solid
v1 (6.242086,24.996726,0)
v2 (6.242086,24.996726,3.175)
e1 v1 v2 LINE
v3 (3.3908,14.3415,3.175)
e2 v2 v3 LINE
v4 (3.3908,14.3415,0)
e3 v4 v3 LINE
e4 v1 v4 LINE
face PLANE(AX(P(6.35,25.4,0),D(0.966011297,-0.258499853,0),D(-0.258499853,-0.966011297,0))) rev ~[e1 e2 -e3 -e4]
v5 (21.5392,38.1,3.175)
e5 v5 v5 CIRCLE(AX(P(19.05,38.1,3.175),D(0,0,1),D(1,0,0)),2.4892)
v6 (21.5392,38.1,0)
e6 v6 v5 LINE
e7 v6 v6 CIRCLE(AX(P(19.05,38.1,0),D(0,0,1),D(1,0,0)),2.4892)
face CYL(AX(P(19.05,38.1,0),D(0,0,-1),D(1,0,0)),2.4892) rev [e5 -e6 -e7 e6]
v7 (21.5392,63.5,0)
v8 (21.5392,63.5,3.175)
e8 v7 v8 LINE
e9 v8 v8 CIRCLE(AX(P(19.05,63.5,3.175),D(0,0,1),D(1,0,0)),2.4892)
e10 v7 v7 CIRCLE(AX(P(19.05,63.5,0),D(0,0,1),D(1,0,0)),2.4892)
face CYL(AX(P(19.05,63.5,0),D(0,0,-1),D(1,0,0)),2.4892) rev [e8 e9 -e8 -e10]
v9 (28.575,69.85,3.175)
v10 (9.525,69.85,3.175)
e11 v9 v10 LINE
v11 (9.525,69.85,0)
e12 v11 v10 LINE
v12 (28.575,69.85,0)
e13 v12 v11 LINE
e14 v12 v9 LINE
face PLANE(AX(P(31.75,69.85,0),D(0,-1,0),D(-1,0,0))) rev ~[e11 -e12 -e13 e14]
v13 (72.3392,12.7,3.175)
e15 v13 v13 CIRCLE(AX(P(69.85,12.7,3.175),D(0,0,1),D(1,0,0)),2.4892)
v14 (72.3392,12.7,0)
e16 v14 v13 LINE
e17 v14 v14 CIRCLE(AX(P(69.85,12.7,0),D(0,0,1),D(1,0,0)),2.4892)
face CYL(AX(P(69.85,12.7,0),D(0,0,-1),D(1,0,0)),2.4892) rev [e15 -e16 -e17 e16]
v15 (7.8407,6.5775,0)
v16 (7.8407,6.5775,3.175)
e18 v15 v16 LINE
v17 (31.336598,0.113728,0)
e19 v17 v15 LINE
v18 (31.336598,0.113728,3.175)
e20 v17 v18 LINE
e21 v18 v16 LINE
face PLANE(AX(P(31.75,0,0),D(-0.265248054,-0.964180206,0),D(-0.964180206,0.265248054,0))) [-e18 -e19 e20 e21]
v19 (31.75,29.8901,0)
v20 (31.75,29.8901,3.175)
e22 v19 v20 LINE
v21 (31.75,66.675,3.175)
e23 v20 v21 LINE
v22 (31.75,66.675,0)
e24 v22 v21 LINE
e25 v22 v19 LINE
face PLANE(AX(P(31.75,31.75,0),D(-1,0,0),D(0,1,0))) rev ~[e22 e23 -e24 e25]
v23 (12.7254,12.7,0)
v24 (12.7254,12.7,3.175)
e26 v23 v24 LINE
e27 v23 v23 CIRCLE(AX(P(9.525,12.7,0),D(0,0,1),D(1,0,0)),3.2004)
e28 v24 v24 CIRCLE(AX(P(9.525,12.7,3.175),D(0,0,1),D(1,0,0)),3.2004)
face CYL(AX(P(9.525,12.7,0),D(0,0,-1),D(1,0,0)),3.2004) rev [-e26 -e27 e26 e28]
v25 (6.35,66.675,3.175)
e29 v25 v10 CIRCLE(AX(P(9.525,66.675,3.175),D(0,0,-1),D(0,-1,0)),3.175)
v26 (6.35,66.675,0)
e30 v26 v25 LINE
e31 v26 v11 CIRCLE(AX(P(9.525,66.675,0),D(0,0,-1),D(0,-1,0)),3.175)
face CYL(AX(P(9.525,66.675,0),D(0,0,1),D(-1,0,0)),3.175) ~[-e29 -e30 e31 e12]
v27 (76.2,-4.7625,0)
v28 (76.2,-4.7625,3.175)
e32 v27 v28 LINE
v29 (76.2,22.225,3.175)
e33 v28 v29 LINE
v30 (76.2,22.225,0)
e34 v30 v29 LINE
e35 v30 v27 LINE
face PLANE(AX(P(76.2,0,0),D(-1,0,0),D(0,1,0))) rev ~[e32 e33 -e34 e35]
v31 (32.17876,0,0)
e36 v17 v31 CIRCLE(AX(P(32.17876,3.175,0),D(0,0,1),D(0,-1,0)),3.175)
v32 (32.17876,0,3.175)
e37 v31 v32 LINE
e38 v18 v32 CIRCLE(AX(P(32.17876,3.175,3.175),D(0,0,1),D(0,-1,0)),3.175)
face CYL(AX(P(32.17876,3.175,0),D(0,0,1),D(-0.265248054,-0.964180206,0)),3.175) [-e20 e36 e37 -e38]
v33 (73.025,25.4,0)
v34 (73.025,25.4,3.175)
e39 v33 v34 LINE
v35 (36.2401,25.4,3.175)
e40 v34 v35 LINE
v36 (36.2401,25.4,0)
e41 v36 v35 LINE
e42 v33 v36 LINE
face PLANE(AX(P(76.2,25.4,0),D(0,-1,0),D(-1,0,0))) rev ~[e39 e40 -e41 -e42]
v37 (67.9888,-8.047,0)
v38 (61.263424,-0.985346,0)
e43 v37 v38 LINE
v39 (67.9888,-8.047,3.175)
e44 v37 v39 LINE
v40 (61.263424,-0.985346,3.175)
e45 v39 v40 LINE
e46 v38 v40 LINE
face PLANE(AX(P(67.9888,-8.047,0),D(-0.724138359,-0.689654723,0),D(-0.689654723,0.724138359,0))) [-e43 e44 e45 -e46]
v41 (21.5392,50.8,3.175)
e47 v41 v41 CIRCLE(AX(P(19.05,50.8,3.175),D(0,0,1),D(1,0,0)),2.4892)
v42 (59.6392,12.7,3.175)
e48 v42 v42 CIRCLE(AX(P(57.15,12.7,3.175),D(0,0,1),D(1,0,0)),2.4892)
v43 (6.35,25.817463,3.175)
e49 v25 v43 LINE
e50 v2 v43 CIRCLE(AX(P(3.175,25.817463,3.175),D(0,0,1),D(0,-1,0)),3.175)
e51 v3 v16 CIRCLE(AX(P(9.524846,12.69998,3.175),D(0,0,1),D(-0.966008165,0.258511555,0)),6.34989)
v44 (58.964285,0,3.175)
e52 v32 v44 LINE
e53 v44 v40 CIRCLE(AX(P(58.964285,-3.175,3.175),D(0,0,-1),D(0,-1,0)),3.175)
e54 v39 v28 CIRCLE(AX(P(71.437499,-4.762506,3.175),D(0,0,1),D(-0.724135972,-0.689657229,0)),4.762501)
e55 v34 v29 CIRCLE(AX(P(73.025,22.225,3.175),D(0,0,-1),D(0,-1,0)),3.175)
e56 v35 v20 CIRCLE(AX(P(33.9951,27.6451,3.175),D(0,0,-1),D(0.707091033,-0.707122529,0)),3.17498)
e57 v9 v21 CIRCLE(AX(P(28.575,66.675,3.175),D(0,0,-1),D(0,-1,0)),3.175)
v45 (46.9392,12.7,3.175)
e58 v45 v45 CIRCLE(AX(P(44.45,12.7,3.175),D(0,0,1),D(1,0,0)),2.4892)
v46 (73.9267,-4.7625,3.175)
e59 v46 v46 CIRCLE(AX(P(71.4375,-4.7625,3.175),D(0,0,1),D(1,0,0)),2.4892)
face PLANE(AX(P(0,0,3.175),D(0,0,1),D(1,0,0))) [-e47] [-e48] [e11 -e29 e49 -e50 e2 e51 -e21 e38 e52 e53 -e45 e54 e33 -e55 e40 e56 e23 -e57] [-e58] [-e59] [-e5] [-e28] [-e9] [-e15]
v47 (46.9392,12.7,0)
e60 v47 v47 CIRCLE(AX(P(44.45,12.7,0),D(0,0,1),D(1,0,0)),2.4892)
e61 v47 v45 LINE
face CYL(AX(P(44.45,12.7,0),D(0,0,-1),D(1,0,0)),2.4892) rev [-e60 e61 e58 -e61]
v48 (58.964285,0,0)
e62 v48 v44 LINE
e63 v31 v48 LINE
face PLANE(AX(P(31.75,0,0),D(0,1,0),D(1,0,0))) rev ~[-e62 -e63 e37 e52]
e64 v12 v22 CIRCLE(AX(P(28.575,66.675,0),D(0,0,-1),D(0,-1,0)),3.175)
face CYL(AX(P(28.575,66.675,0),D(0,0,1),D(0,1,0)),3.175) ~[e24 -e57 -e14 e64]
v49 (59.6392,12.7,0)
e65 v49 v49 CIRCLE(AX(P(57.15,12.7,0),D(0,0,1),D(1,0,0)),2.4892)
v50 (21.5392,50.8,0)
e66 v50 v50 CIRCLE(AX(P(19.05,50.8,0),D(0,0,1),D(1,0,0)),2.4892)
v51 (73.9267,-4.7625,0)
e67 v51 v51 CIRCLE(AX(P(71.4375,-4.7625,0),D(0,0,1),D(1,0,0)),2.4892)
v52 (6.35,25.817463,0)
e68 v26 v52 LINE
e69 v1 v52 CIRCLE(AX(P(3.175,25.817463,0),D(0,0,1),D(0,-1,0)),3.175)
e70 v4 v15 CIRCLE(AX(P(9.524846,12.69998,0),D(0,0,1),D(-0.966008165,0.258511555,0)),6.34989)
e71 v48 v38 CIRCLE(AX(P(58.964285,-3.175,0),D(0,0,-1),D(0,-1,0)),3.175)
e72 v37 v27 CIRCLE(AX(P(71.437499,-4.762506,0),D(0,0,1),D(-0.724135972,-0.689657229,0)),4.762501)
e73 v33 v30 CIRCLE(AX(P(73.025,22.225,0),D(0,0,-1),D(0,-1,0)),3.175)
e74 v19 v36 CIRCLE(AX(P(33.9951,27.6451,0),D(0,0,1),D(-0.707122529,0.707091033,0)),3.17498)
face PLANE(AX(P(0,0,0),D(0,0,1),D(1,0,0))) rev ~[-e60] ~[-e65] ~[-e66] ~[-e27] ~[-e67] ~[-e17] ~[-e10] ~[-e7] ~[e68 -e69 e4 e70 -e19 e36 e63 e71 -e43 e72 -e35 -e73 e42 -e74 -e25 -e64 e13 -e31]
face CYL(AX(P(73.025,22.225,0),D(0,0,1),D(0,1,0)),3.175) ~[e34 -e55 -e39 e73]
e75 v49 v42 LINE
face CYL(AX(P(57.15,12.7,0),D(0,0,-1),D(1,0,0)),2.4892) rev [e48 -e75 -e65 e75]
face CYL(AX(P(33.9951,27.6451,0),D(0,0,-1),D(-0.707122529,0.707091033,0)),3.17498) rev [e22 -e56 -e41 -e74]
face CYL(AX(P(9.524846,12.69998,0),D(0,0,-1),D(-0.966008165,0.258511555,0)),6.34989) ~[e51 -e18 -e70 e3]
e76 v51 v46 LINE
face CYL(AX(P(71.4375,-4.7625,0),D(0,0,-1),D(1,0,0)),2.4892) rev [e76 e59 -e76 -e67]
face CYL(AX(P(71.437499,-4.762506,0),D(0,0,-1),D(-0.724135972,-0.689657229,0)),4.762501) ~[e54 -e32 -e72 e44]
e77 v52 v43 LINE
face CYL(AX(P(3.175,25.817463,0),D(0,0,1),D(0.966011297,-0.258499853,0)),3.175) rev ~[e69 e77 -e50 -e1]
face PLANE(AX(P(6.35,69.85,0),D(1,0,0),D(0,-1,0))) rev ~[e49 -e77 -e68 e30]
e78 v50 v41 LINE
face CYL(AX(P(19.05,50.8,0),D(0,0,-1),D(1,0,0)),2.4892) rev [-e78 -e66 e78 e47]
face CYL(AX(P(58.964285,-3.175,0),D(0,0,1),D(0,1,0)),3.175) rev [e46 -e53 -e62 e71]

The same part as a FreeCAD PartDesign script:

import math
import FreeCAD as App
import Part
import Sketcher
from FreeCAD import Vector
Q = App.Units.Quantity


def edges_at(feature, points):
    """Names of the edges that pass closest to the given points."""
    edges = feature.Shape.Edges
    near = lambda p: min(range(len(edges)), key=lambda i: edges[i].distToShape(Part.Vertex(*p))[0])
    return sorted({f"Edge{near(p) + 1}" for p in points})

doc = App.newDocument("Part")
body = doc.addObject("PartDesign::Body", "Body")

# Sketch on XY plane
sketch1 = body.newObject("Sketcher::SketchObject", "Sketch")
sketch1.AttachmentSupport = (doc.getObject("XY_Plane"), [""])
sketch1.MapMode = "FlatFace"
sketch1.addGeometry([
    Part.LineSegment(Vector(6.3, 25.4, 0), Vector(3.4, 14.3, 0)),  # 0
    Part.ArcOfCircle(Part.Circle(Vector(9.5, 12.7, 0), Vector(0, 0, 1), 6.4), math.radians(165), math.radians(255)),  # 1
    Part.LineSegment(Vector(7.8, 6.6, 0), Vector(31.8, 0, 0)),  # 2
    Part.LineSegment(Vector(31.8, 0, 0), Vector(60.3, 0, 0)),  # 3
    Part.LineSegment(Vector(60.3, 0, 0), Vector(68, -8, 0)),  # 4
    Part.ArcOfCircle(Part.Circle(Vector(71.4, -4.8, 0), Vector(0, 0, 1), 4.8), math.radians(-136), math.radians(0)),  # 5
    Part.LineSegment(Vector(76.2, -4.8, 0), Vector(76.2, 25.4, 0)),  # 6
    Part.LineSegment(Vector(76.2, 25.4, 0), Vector(36.2, 25.4, 0)),  # 7
    Part.ArcOfCircle(Part.Circle(Vector(34, 27.6, 0), Vector(0, 0, 1), 3.2), math.radians(135), math.radians(315)),  # 8
    Part.LineSegment(Vector(31.8, 29.9, 0), Vector(31.8, 69.8, 0)),  # 9
    Part.LineSegment(Vector(31.8, 69.8, 0), Vector(6.3, 69.8, 0)),  # 10
    Part.LineSegment(Vector(6.3, 69.8, 0), Vector(6.3, 25.4, 0)),  # 11
    Part.Circle(Vector(9.5, 12.7, 0), Vector(0, 0, 1), 3.2),  # 12
    Part.Circle(Vector(44.5, 12.7, 0), Vector(0, 0, 1), 2.5),  # 13
    Part.Circle(Vector(57.1, 12.7, 0), Vector(0, 0, 1), 2.5),  # 14
    Part.Circle(Vector(69.8, 12.7, 0), Vector(0, 0, 1), 2.5),  # 15
    Part.Circle(Vector(19.1, 38.1, 0), Vector(0, 0, 1), 2.5),  # 16
    Part.Circle(Vector(19.1, 50.8, 0), Vector(0, 0, 1), 2.5),  # 17
    Part.Circle(Vector(19.1, 63.5, 0), Vector(0, 0, 1), 2.5),  # 18
    Part.Circle(Vector(71.4, -4.8, 0), Vector(0, 0, 1), 2.5),  # 19
], False)
sketch1.addConstraint([
    Sketcher.Constraint("Tangent", 0, 2, 1, 1),
    Sketcher.Constraint("Tangent", 1, 2, 2, 1),
    Sketcher.Constraint("Coincident", 2, 2, 3, 1),
    Sketcher.Constraint("Coincident", 3, 2, 4, 1),
    Sketcher.Constraint("Tangent", 4, 2, 5, 1),
    Sketcher.Constraint("Tangent", 5, 2, 6, 1),
    Sketcher.Constraint("Coincident", 6, 2, 7, 1),
    Sketcher.Constraint("Coincident", 7, 2, 8, 2),
    Sketcher.Constraint("Coincident", 8, 1, 9, 1),
    Sketcher.Constraint("Coincident", 9, 2, 10, 1),
    Sketcher.Constraint("Coincident", 10, 2, 11, 1),
    Sketcher.Constraint("Coincident", 11, 2, 0, 1),
    Sketcher.Constraint("Horizontal", 3),
    Sketcher.Constraint("Vertical", 6),
    Sketcher.Constraint("Horizontal", 7),
    Sketcher.Constraint("Vertical", 9),
    Sketcher.Constraint("Horizontal", 10),
    Sketcher.Constraint("Vertical", 11),
    Sketcher.Constraint("Coincident", 12, 3, 1, 3),
    Sketcher.Constraint("Coincident", 19, 3, 5, 3),
    Sketcher.Constraint("Equal", 13, 14),
    Sketcher.Constraint("Equal", 14, 15),
    Sketcher.Constraint("Equal", 15, 16),
    Sketcher.Constraint("Equal", 16, 17),
    Sketcher.Constraint("Equal", 17, 18),
    Sketcher.Constraint("Equal", 18, 19),
    Sketcher.Constraint("PointOnObject", 2, 2, -1),
    Sketcher.Constraint("Horizontal", 12, 3, 13, 3),
    Sketcher.Constraint("Horizontal", 13, 3, 14, 3),
    Sketcher.Constraint("Horizontal", 14, 3, 15, 3),
    Sketcher.Constraint("Horizontal", 7, 2, 11, 2),
    Sketcher.Constraint("Vertical", 16, 3, 17, 3),
    Sketcher.Constraint("Vertical", 17, 3, 18, 3),
    Sketcher.Constraint("Vertical", 2, 2, 8, 1),
    Sketcher.Constraint("Equal", 7, 9),
    Sketcher.Constraint("DistanceX", 10, 2, 10, 1, Q("1 in")),
    Sketcher.Constraint("Radius", 1, Q("0.25 in")),
    Sketcher.Constraint("Diameter", 12, Q("0.252 in")),
    Sketcher.Constraint("Diameter", 13, Q("0.196 in")),
    Sketcher.Constraint("DistanceY", -1, 1, 6, 2, Q("1 in")),
    Sketcher.Constraint("Radius", 5, Q("0.1875 in")),
    Sketcher.Constraint("Radius", 8, Q("0.125 in")),
    Sketcher.Constraint("DistanceX", 13, 3, 15, 3, Q("1 in")),
    Sketcher.Constraint("DistanceY", 1, 3, 16, 3, Q("1 in")),
    Sketcher.Constraint("DistanceX", 16, 3, 13, 3, Q("1 in")),
    Sketcher.Constraint("DistanceY", 16, 3, 18, 3, Q("1 in")),
    Sketcher.Constraint("DistanceY", -1, 1, 1, 3, Q("0.5 in")),
    Sketcher.Constraint("DistanceX", 13, 3, 14, 3, Q("0.5 in")),
    Sketcher.Constraint("DistanceY", 16, 3, 17, 3, Q("0.5 in")),
    Sketcher.Constraint("DistanceX", 2, 2, 13, 3, Q("0.5 in")),
    Sketcher.Constraint("DistanceX", -1, 1, 16, 3, Q("0.75 in")),
    Sketcher.Constraint("DistanceX", 15, 3, 5, 2, Q("0.25 in")),
    Sketcher.Constraint("DistanceY", 18, 3, 9, 2, Q("0.25 in")),
    Sketcher.Constraint("DistanceX", -1, 1, 1, 3, Q("0.375 in")),
    Sketcher.Constraint("DistanceX", 14, 3, 3, 2, Q("0.125 in")),
    Sketcher.Constraint("DistanceY", 6, 1, 6, 2, Q("1.1875 in")),
    Sketcher.Constraint("DistanceX", -1, 1, 8, 3, Q("1.3384 in")),
])
pad1 = body.newObject("PartDesign::Pad", "Pad")
pad1.Profile = sketch1
pad1.Length = Q("0.125 in")
doc.recompute()

fillet = body.newObject("PartDesign::Fillet", "Fillet")
fillet.Base = (pad1, edges_at(pad1, [
    (6.35, 69.85, 1.587),
    (31.75, 69.85, 1.587),
    (76.2, 25.4, 1.587),
    (6.35, 25.4, 1.587),
    (31.75, 0, 1.587),
    (60.325, 0, 1.587),
]))
fillet.Radius = Q("0.125 in")

doc.recompute()
